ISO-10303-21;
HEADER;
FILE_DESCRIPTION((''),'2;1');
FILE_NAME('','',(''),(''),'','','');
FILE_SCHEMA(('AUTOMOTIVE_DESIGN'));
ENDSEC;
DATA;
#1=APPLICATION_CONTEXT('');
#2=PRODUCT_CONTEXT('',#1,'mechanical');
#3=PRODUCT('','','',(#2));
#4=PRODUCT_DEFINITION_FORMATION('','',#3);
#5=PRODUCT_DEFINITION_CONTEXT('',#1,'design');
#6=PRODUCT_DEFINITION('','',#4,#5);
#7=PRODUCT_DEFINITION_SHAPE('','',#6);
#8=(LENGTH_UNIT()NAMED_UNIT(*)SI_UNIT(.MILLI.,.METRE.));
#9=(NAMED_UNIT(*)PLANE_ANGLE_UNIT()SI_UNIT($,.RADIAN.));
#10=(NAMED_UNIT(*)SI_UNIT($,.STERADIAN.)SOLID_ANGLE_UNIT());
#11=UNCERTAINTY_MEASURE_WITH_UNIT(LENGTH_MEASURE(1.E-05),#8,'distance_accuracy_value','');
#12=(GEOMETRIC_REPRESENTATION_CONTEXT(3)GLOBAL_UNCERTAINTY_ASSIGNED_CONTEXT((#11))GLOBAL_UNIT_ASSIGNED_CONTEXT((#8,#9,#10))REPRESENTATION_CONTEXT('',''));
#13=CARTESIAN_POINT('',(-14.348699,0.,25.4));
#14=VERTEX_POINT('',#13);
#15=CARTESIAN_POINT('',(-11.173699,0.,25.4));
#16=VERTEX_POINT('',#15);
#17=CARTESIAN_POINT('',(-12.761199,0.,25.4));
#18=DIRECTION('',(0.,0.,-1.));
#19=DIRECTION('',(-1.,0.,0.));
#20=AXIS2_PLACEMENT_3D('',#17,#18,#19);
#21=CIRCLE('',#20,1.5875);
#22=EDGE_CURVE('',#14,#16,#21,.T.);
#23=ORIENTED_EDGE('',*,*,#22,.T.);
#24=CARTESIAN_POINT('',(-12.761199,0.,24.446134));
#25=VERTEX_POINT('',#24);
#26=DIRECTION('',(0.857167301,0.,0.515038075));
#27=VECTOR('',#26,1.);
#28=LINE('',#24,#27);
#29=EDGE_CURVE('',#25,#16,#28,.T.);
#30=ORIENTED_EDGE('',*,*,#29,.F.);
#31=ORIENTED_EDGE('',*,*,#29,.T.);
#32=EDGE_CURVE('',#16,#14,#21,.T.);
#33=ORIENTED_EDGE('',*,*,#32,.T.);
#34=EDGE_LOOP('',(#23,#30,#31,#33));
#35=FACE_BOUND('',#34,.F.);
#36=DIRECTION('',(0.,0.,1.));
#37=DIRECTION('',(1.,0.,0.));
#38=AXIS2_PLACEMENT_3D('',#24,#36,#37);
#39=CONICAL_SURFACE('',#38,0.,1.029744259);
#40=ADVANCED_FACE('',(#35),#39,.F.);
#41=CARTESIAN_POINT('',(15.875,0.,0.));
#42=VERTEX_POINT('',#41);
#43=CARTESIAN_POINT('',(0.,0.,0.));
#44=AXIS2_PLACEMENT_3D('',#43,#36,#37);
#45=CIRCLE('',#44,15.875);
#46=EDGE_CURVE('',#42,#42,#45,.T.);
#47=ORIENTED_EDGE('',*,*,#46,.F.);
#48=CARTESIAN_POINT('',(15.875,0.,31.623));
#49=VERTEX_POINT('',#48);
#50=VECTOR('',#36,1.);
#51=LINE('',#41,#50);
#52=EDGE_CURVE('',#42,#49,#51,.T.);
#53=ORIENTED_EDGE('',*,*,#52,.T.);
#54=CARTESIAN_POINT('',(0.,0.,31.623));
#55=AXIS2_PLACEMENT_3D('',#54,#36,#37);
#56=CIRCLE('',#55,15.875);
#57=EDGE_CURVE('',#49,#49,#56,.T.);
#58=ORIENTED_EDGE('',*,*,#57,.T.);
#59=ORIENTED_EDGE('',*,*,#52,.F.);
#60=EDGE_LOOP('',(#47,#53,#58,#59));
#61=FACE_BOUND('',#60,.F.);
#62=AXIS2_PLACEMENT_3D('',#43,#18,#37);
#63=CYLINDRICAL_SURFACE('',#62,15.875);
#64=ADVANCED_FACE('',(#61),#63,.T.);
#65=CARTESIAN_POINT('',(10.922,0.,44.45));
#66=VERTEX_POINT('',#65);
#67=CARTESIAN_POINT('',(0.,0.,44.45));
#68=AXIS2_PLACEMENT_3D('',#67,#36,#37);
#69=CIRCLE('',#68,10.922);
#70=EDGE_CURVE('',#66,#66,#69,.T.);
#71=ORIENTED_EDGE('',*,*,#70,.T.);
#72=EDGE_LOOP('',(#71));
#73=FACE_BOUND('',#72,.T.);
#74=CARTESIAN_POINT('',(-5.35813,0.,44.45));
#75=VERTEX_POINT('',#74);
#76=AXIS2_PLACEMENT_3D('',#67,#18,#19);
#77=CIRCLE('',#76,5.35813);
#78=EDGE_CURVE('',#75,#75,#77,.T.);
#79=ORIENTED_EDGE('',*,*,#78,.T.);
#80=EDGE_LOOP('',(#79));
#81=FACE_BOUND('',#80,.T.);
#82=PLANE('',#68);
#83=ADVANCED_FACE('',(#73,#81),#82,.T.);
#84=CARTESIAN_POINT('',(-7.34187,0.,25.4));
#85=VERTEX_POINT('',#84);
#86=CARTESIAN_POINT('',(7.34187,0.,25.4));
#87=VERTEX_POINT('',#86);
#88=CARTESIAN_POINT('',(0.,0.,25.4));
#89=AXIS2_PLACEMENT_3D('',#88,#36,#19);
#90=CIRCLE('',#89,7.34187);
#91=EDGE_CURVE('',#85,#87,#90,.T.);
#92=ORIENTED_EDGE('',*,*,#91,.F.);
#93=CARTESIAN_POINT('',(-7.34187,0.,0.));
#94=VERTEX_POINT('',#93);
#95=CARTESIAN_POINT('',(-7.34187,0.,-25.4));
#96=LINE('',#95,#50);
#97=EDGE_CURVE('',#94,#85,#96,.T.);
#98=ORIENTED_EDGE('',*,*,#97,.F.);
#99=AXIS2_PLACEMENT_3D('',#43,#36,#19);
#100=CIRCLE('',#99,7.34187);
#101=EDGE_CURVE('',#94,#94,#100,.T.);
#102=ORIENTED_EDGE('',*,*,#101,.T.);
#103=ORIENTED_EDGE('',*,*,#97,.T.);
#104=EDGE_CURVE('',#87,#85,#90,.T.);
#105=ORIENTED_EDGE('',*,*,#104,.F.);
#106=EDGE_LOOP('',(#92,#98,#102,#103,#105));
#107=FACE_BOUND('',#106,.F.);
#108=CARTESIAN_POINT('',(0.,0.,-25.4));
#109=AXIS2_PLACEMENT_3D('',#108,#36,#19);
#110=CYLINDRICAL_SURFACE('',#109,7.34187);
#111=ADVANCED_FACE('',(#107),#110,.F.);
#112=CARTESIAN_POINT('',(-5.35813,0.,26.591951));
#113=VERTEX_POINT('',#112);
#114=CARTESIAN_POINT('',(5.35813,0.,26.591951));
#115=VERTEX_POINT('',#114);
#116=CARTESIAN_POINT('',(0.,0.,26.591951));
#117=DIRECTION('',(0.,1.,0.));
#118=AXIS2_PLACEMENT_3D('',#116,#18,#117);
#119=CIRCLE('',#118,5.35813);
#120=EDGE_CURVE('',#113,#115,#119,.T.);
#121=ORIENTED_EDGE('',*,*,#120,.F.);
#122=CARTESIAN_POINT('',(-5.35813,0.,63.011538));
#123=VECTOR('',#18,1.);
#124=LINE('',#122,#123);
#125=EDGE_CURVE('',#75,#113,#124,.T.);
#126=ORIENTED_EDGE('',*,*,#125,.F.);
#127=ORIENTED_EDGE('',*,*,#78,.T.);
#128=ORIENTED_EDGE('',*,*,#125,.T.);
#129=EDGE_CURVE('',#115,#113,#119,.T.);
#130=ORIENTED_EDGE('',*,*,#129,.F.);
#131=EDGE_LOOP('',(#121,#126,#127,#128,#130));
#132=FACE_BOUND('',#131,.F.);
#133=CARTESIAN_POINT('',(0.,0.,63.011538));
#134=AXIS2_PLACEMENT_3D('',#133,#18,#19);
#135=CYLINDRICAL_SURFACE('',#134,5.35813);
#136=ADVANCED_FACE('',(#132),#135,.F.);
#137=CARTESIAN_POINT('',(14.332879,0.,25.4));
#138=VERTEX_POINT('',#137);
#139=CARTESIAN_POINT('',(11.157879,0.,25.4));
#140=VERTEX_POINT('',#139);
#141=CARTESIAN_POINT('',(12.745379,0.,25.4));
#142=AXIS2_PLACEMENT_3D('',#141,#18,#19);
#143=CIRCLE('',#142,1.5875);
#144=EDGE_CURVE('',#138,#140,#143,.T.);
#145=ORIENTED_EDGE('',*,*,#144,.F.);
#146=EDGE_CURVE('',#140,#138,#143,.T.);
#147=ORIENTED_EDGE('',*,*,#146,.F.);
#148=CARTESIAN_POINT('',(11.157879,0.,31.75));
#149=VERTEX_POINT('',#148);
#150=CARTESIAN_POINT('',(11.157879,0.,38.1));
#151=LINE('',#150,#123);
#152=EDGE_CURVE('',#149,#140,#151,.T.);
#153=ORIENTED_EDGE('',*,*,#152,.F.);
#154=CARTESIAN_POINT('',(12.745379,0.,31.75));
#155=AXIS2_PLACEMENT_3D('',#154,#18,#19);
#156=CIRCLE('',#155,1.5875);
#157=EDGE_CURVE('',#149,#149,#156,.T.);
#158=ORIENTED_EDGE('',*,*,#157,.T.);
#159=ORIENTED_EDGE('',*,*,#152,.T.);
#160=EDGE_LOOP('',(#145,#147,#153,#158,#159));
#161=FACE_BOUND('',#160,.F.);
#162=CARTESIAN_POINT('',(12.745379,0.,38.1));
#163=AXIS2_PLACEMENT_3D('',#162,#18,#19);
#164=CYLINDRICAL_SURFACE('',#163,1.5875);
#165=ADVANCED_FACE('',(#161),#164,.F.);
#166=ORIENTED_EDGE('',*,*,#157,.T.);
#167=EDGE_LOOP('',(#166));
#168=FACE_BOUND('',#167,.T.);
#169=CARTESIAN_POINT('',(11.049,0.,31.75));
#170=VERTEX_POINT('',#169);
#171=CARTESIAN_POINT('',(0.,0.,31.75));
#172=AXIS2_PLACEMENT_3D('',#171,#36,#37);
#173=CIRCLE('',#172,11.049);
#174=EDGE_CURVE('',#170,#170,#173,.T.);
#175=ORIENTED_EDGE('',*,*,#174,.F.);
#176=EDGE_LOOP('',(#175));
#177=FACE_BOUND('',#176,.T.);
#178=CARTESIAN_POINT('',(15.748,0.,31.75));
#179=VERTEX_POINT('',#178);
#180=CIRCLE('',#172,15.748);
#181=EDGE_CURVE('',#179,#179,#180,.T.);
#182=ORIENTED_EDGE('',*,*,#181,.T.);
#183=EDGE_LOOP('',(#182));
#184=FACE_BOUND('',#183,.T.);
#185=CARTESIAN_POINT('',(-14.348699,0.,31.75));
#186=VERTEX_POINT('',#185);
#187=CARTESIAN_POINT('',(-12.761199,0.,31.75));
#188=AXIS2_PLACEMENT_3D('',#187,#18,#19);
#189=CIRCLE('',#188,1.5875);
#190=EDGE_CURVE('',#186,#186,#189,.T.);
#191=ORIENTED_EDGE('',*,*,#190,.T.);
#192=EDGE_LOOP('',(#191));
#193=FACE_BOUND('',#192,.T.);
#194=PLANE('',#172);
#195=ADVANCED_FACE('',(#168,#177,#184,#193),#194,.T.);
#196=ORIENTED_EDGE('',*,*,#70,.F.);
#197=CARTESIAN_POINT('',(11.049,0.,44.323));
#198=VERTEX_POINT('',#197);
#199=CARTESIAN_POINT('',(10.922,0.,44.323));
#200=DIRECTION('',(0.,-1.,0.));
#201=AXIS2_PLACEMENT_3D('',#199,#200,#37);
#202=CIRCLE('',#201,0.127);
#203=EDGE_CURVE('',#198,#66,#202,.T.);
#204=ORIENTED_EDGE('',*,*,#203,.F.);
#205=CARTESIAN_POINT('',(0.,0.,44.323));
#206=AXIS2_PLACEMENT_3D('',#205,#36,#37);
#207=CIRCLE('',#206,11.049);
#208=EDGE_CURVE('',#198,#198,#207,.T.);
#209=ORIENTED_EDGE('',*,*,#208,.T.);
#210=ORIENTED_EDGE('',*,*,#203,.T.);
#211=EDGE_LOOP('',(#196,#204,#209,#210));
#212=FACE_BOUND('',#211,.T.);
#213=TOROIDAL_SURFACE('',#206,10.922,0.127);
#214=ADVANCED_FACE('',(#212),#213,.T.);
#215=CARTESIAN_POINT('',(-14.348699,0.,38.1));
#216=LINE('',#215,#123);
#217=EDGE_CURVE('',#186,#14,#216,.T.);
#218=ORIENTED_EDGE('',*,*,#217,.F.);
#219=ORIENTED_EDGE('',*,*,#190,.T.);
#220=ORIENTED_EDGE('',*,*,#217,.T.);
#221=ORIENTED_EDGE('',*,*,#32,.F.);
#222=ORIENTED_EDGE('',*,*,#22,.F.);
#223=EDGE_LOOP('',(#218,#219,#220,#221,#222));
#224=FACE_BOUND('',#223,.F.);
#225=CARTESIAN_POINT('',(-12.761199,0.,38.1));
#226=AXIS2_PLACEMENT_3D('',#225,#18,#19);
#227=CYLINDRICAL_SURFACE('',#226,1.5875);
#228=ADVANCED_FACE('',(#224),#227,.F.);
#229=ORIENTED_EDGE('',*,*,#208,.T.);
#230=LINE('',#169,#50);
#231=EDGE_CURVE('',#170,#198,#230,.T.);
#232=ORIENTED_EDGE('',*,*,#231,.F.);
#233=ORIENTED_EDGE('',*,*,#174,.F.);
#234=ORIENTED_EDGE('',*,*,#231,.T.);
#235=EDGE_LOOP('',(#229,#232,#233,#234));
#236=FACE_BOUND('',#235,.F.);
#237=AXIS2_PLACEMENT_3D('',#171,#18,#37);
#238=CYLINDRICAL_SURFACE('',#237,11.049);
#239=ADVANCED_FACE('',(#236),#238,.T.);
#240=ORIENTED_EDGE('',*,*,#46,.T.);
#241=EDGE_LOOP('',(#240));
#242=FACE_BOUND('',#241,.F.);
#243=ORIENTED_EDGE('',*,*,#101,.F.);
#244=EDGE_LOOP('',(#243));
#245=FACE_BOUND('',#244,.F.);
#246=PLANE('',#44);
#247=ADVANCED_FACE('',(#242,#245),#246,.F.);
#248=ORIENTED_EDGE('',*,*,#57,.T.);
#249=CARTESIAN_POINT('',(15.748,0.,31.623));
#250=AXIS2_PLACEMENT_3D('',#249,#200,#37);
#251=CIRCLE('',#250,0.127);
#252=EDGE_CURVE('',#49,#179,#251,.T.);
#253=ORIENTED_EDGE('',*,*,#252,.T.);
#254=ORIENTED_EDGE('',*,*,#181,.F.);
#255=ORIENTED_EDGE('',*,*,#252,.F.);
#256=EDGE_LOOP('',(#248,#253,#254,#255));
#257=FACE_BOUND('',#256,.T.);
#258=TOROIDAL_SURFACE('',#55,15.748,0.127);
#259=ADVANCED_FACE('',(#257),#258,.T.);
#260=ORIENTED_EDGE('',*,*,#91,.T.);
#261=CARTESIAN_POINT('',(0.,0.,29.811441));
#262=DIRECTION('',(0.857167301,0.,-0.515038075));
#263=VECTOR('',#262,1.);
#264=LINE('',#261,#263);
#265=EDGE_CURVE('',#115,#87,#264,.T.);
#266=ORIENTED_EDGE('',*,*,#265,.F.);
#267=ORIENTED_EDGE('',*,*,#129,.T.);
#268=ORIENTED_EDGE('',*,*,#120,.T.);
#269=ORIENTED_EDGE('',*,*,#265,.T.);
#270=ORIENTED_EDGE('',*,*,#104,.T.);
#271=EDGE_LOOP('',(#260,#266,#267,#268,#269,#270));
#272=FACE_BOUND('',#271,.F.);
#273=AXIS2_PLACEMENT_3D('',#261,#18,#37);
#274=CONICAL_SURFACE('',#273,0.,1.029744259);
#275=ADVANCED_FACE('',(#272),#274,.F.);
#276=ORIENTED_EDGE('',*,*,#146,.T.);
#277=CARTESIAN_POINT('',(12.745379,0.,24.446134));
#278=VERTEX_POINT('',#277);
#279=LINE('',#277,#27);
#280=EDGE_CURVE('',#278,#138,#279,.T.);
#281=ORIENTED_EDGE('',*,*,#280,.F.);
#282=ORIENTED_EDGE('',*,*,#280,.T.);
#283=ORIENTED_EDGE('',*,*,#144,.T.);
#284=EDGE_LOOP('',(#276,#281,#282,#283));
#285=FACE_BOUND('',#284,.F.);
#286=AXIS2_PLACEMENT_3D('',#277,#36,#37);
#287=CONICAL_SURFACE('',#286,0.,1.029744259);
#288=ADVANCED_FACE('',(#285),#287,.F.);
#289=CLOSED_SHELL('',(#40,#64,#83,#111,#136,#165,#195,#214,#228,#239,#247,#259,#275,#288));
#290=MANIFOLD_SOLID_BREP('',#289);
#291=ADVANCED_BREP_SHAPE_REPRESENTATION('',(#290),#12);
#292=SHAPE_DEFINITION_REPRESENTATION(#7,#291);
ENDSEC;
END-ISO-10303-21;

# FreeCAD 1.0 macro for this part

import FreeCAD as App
import Part
import Sketcher
from FreeCAD import Vector
Q = App.Units.Quantity


def edges_at(feature, points):
    """Names of the edges that pass closest to the given points."""
    edges = feature.Shape.Edges
    near = lambda p: min(range(len(edges)), key=lambda i: edges[i].distToShape(Part.Vertex(*p))[0])
    return sorted({f"Edge{near(p) + 1}" for p in points})

doc = App.newDocument("Part")
body = doc.addObject("PartDesign::Body", "Body")

# Sketch on XY plane
sketch1 = doc.addObject("Sketcher::SketchObject", "Sketch")
body.addObject(sketch1)
sketch1.AttachmentSupport = (doc.XY_Plane, [""])
sketch1.MapMode = "FlatFace"
sketch1.addGeometry(Part.Circle(Vector(0, 0, 0), Vector(0, 0, 1), 16), False)
sketch1.addConstraint([
    Sketcher.Constraint("Coincident", 0, 3, -1, 1),
    Sketcher.Constraint("Diameter", 0, Q("1.25 in")),
])
pad1 = doc.addObject("PartDesign::Pad", "Pad")
body.addObject(pad1)
pad1.Profile = sketch1
pad1.Length = Q("1.25 in")

# Sketch on XY plane
sketch2 = doc.addObject("Sketcher::SketchObject", "Sketch001")
body.addObject(sketch2)
sketch2.AttachmentSupport = (doc.XY_Plane, [""])
sketch2.MapMode = "FlatFace"
sketch2.AttachmentOffset = App.Placement(Vector(0, 0, 1.25 * 25.4), App.Rotation())
sketch2.addGeometry(Part.Circle(Vector(0, 0, 0), Vector(0, 0, 1), 11), False)
sketch2.addConstraint([
    Sketcher.Constraint("Coincident", 0, 3, -1, 1),
    Sketcher.Constraint("Diameter", 0, Q("0.87 in")),
])
pad2 = doc.addObject("PartDesign::Pad", "Pad001")
body.addObject(pad2)
pad2.Profile = sketch2
pad2.Length = Q("0.5 in")

# Sketch on XY plane
sketch3 = doc.addObject("Sketcher::SketchObject", "Sketch002")
body.addObject(sketch3)
sketch3.AttachmentSupport = (doc.XY_Plane, [""])
sketch3.MapMode = "FlatFace"
sketch3.AttachmentOffset = App.Placement(Vector(0, 0, 1.75 * 25.4), App.Rotation())
sketch3.addGeometry(Part.Circle(Vector(0, 0, 0), Vector(0, 0, 1), 5), False)
sketch3.addConstraint([
    Sketcher.Constraint("Coincident", 0, 3, -1, 1),
    Sketcher.Constraint("Diameter", 0, Q("0.4219 in")),
])
doc.recompute()
hole = doc.addObject("PartDesign::Hole", "Hole")
body.addObject(hole)
hole.Profile = sketch3
hole.ThreadType = "None"
hole.Diameter = Q("0.4219 in")
hole.DepthType = "Dimension"
hole.Depth = 18.561538
hole.DrillPoint = "Angled"
hole.DrillPointAngle = 118

# Sketch on XY plane
sketch4 = doc.addObject("Sketcher::SketchObject", "Sketch003")
body.addObject(sketch4)
sketch4.AttachmentSupport = (doc.XY_Plane, [""])
sketch4.MapMode = "FlatFace"
sketch4.AttachmentOffset = App.Placement(Vector(0, 0, 1.25 * 25.4), App.Rotation())
sketch4.addGeometry([
    Part.Circle(Vector(-12.8, 0, 0), Vector(0, 0, 1), 1.6),
    Part.Circle(Vector(12.7, 0, 0), Vector(0, 0, 1), 1.6),
], False)
sketch4.addConstraint([
    Sketcher.Constraint("Equal", 0, 1),
    Sketcher.Constraint("PointOnObject", 0, 3, -1),
    Sketcher.Constraint("PointOnObject", 1, 3, -1),
    Sketcher.Constraint("Diameter", 0, Q("0.125 in")),
    Sketcher.Constraint("DistanceX", 0, 3, -1, 1, Q("12.761199 mm")),
    Sketcher.Constraint("DistanceX", -1, 1, 1, 3, Q("12.745379 mm")),
])
doc.recompute()
hole2 = doc.addObject("PartDesign::Hole", "Hole001")
body.addObject(hole2)
hole2.Profile = sketch4
hole2.ThreadType = "None"
hole2.Diameter = Q("0.125 in")
hole2.DepthType = "Dimension"
hole2.Depth = Q("0.25 in")
hole2.DrillPoint = "Angled"
hole2.DrillPointAngle = 118
doc.recompute()

fillet = doc.addObject("PartDesign::Fillet", "Fillet")
body.addObject(fillet)
fillet.Base = (hole2, edges_at(hole2, [(-11.049, 0, 44.45), (-15.875, 0, 31.75)]))
fillet.Radius = Q("0.005 in")

# Sketch on XY plane
sketch5 = doc.addObject("Sketcher::SketchObject", "Sketch004")
body.addObject(sketch5)
sketch5.AttachmentSupport = (doc.XY_Plane, [""])
sketch5.MapMode = "FlatFace"
sketch5.addGeometry(Part.Circle(Vector(0, 0, 0), Vector(0, 0, 1), 7), False)
sketch5.addConstraint([
    Sketcher.Constraint("Coincident", 0, 3, -1, 1),
    Sketcher.Constraint("Diameter", 0, Q("0.5781 in")),
])
doc.recompute()
hole3 = doc.addObject("PartDesign::Hole", "Hole002")
body.addObject(hole3)
hole3.Profile = sketch5
hole3.ThreadType = "None"
hole3.Diameter = Q("0.5781 in")
hole3.DepthType = "Dimension"
hole3.Depth = Q("1 in")
hole3.DrillPoint = "Angled"
hole3.DrillPointAngle = 118
hole3.Reversed = True

doc.recompute()
